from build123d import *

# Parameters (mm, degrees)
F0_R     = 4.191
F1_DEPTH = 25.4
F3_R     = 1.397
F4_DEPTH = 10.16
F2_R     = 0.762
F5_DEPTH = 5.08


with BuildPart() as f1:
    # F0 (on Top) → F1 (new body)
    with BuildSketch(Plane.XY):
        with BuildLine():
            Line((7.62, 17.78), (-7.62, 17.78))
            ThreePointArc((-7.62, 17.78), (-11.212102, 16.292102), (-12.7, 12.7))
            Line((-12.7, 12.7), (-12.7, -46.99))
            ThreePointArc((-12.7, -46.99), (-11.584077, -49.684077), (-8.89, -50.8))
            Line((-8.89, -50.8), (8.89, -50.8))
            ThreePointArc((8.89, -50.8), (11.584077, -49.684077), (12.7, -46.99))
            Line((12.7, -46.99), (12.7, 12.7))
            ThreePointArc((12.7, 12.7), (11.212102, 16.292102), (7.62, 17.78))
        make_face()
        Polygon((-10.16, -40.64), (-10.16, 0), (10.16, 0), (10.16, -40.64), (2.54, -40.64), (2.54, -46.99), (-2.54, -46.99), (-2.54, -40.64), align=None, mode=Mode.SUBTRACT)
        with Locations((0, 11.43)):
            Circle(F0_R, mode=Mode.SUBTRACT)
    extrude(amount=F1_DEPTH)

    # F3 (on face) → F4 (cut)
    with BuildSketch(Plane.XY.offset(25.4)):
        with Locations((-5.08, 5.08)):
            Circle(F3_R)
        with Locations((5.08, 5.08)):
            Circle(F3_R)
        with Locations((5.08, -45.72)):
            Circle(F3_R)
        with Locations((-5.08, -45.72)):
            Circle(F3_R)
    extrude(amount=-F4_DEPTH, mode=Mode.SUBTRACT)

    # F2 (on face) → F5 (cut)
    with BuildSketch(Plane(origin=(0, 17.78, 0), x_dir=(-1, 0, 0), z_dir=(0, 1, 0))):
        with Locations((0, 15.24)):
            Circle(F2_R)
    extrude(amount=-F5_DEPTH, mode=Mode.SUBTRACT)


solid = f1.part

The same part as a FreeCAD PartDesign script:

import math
import FreeCAD as App
import Part
import Sketcher
from FreeCAD import Vector
Q = App.Units.Quantity


def add_polygon(sketch, points):
    """Adds a closed chain of lines whose ends are joined by coincident constraints."""
    first, n = sketch.GeometryCount, len(points)
    for a, b in zip(points, points[1:] + points[:1]):
        sketch.addGeometry(Part.LineSegment(App.Vector(*a, 0), App.Vector(*b, 0)), False)
    for i in range(n):
        sketch.addConstraint(Sketcher.Constraint("Coincident", first + i, 2, first + (i + 1) % n, 1))

doc = App.newDocument("Part")
params = doc.addObject("Spreadsheet::Sheet", "Params")
for row, (alias, value) in enumerate([
    ("sketch1_radius", "0.2000001 in"),
    ("sketch1_diameter", "0.33 in"),
    ("sketch1_radius2", "0.15 in"),
    ("sketch1_width", "0.6 in"),
    ("sketch1_width2", "0.3 in"),
    ("pad1_length", "1 in"),
    ("sketch2_diameter", "0.11 in"),
    ("pocket1_length", "0.4 in"),
    ("sketch3_diameter", "0.06 in"),
    ("pocket2_length", "0.2 in"),
], start=1):
    params.set(f"A{row}", alias)
    params.set(f"B{row}", "=" + value)
    params.setAlias(f"B{row}", alias)

body = doc.addObject("PartDesign::Body", "Body")

# Sketch on XY plane
sketch1 = body.newObject("Sketcher::SketchObject", "Sketch")
sketch1.AttachmentSupport = (doc.getObject("XY_Plane"), [""])
sketch1.MapMode = "FlatFace"
sketch1.addGeometry(Part.LineSegment(Vector(7.62, 17.78, 0), Vector(-7.62, 17.78, 0)), False)  # 0
sketch1.addGeometry(Part.ArcOfCircle(Part.Circle(Vector(-7.619998, 12.699998, 0), Vector(0, 0, 1), 5.080002), math.radians(90.000017), math.radians(179.999983)), False)  # 1
sketch1.addGeometry(Part.LineSegment(Vector(-12.7, 12.7, 0), Vector(-12.7, -46.99, 0)), False)  # 2
sketch1.addGeometry(Part.ArcOfCircle(Part.Circle(Vector(-8.890001, -46.990001, 0), Vector(0, 0, 1), 3.809999), math.radians(179.999992), math.radians(270.000008)), False)  # 3
sketch1.addGeometry(Part.LineSegment(Vector(-8.89, -50.8, 0), Vector(8.89, -50.8, 0)), False)  # 4
sketch1.addGeometry(Part.ArcOfCircle(Part.Circle(Vector(8.890001, -46.990001, 0), Vector(0, 0, 1), 3.809999), math.radians(-90.000008), math.radians(0.000008)), False)  # 5
sketch1.addGeometry(Part.LineSegment(Vector(12.7, -46.99, 0), Vector(12.7, 12.7, 0)), False)  # 6
sketch1.addGeometry(Part.ArcOfCircle(Part.Circle(Vector(7.619998, 12.699998, 0), Vector(0, 0, 1), 5.080002), math.radians(0.000017), math.radians(89.999983)), False)  # 7
add_polygon(sketch1, [(-2.54, -40.64), (-10.16, -40.64), (-10.16, 0), (10.16, 0), (10.16, -40.64), (2.54, -40.64), (2.54, -46.99), (-2.54, -46.99)])  # lines 8-15
sketch1.addGeometry(Part.Circle(Vector(0, 11.43, 0), Vector(0, 0, 1), 4.191), False)  # 16
sketch1.addConstraint([
    Sketcher.Constraint("Tangent", 0, 2, 1, 1),
    Sketcher.Constraint("Tangent", 1, 2, 2, 1),
    Sketcher.Constraint("Tangent", 2, 2, 3, 1),
    Sketcher.Constraint("Tangent", 3, 2, 4, 1),
    Sketcher.Constraint("Tangent", 4, 2, 5, 1),
    Sketcher.Constraint("Tangent", 5, 2, 6, 1),
    Sketcher.Constraint("Tangent", 6, 2, 7, 1),
    Sketcher.Constraint("Tangent", 7, 2, 0, 1),
    Sketcher.Constraint("Horizontal", 0),
    Sketcher.Constraint("Vertical", 2),
    Sketcher.Constraint("Horizontal", 4),
    Sketcher.Constraint("Vertical", 6),
    Sketcher.Constraint("Horizontal", 8),
    Sketcher.Constraint("Vertical", 9),
    Sketcher.Constraint("Horizontal", 10),
    Sketcher.Constraint("Vertical", 11),
    Sketcher.Constraint("Horizontal", 12),
    Sketcher.Constraint("Vertical", 13),
    Sketcher.Constraint("Horizontal", 14),
    Sketcher.Constraint("Vertical", 15),
    Sketcher.Constraint("Equal", 3, 5),
    Sketcher.Constraint("Equal", 1, 7),
    Sketcher.Constraint("Symmetric", 9, 2, 10, 2, -1, 1),
    Sketcher.Constraint("Symmetric", 12, 2, 15, 2, -2),
    Sketcher.Constraint("PointOnObject", 16, 3, -2),
    Sketcher.Constraint("Horizontal", 5, 2, 13, 2),
    Sketcher.Constraint("Radius", 1, Q("0.2000001 in")),
    Sketcher.Constraint("Diameter", 16, Q("0.33 in")),
    Sketcher.Constraint("Radius", 3, Q("0.15 in")),
    Sketcher.Constraint("DistanceX", 0, 2, 0, 1, Q("0.6 in")),
    Sketcher.Constraint("DistanceX", 8, 2, 8, 1, Q("0.3 in")),
    Sketcher.Constraint("DistanceX", 10, 1, 10, 2, Q("0.8 in")),
    Sketcher.Constraint("DistanceY", 9, 1, 9, 2, Q("1.6 in")),
    Sketcher.Constraint("DistanceY", 3, 2, -1, 1, Q("2 in")),
    Sketcher.Constraint("DistanceY", 2, 2, 2, 1, Q("2.35 in")),
    Sketcher.Constraint("DistanceX", 1, 3, -1, 1, Q("0.2999999 in")),
    Sketcher.Constraint("DistanceY", 3, 3, 16, 3, Q("2.3 in")),
])
sketch1.setExpression("Constraints[34]", "Params.sketch1_radius")
sketch1.setExpression("Constraints[35]", "Params.sketch1_diameter")
sketch1.setExpression("Constraints[36]", "Params.sketch1_radius2")
sketch1.setExpression("Constraints[37]", "Params.sketch1_width")
sketch1.setExpression("Constraints[38]", "Params.sketch1_width2")
pad1 = body.newObject("PartDesign::Pad", "Pad")
pad1.Profile = sketch1
pad1.setExpression("Length", "Params.pad1_length")

# Sketch on XY plane
sketch2 = body.newObject("Sketcher::SketchObject", "Sketch001")
sketch2.AttachmentSupport = (doc.getObject("XY_Plane"), [""])
sketch2.MapMode = "FlatFace"
sketch2.AttachmentOffset = App.Placement(Vector(0, 0, 1 * 25.4), App.Rotation())
sketch2.addGeometry([
    Part.Circle(Vector(-5.08, 5.08, 0), Vector(0, 0, 1), 1.397),
    Part.Circle(Vector(5.08, 5.08, 0), Vector(0, 0, 1), 1.397),
    Part.Circle(Vector(5.08, -45.72, 0), Vector(0, 0, 1), 1.397),
    Part.Circle(Vector(-5.08, -45.72, 0), Vector(0, 0, 1), 1.397),
], False)
sketch2.addConstraint([
    Sketcher.Constraint("Equal", 0, 1),
    Sketcher.Constraint("Equal", 1, 2),
    Sketcher.Constraint("Equal", 2, 3),
    Sketcher.Constraint("Symmetric", 0, 3, 1, 3, -2),
    Sketcher.Constraint("Symmetric", 2, 3, 3, 3, -2),
    Sketcher.Constraint("Vertical", 1, 3, 2, 3),
    Sketcher.Constraint("Diameter", 0, Q("0.11 in")),
    Sketcher.Constraint("DistanceY", 2, 3, 1, 3, Q("2 in")),
    Sketcher.Constraint("DistanceX", 0, 3, -1, 1, Q("0.2 in")),
    Sketcher.Constraint("DistanceY", -1, 1, 0, 3, Q("0.2 in")),
])
sketch2.setExpression("Constraints[6]", "Params.sketch2_diameter")
pocket1 = body.newObject("PartDesign::Pocket", "Pocket")
pocket1.Profile = sketch2
pocket1.setExpression("Length", "Params.pocket1_length")

# Sketch on XZ plane
sketch3 = body.newObject("Sketcher::SketchObject", "Sketch002")
sketch3.AttachmentSupport = (doc.getObject("XZ_Plane"), [""])
sketch3.MapMode = "FlatFace"
sketch3.AttachmentOffset = App.Placement(Vector(0, 0, -0.7 * 25.4), App.Rotation())
sketch3.addGeometry(Part.Circle(Vector(0, 15.24, 0), Vector(0, 0, 1), 0.762), False)
sketch3.addConstraint([
    Sketcher.Constraint("PointOnObject", 0, 3, -2),
    Sketcher.Constraint("Diameter", 0, Q("0.06 in")),
    Sketcher.Constraint("DistanceY", -1, 1, 0, 3, Q("0.6 in")),
])
sketch3.setExpression("Constraints[1]", "Params.sketch3_diameter")
pocket2 = body.newObject("PartDesign::Pocket", "Pocket001")
pocket2.Profile = sketch3
pocket2.setExpression("Length", "Params.pocket2_length")
pocket2.Reversed = True

doc.recompute()
